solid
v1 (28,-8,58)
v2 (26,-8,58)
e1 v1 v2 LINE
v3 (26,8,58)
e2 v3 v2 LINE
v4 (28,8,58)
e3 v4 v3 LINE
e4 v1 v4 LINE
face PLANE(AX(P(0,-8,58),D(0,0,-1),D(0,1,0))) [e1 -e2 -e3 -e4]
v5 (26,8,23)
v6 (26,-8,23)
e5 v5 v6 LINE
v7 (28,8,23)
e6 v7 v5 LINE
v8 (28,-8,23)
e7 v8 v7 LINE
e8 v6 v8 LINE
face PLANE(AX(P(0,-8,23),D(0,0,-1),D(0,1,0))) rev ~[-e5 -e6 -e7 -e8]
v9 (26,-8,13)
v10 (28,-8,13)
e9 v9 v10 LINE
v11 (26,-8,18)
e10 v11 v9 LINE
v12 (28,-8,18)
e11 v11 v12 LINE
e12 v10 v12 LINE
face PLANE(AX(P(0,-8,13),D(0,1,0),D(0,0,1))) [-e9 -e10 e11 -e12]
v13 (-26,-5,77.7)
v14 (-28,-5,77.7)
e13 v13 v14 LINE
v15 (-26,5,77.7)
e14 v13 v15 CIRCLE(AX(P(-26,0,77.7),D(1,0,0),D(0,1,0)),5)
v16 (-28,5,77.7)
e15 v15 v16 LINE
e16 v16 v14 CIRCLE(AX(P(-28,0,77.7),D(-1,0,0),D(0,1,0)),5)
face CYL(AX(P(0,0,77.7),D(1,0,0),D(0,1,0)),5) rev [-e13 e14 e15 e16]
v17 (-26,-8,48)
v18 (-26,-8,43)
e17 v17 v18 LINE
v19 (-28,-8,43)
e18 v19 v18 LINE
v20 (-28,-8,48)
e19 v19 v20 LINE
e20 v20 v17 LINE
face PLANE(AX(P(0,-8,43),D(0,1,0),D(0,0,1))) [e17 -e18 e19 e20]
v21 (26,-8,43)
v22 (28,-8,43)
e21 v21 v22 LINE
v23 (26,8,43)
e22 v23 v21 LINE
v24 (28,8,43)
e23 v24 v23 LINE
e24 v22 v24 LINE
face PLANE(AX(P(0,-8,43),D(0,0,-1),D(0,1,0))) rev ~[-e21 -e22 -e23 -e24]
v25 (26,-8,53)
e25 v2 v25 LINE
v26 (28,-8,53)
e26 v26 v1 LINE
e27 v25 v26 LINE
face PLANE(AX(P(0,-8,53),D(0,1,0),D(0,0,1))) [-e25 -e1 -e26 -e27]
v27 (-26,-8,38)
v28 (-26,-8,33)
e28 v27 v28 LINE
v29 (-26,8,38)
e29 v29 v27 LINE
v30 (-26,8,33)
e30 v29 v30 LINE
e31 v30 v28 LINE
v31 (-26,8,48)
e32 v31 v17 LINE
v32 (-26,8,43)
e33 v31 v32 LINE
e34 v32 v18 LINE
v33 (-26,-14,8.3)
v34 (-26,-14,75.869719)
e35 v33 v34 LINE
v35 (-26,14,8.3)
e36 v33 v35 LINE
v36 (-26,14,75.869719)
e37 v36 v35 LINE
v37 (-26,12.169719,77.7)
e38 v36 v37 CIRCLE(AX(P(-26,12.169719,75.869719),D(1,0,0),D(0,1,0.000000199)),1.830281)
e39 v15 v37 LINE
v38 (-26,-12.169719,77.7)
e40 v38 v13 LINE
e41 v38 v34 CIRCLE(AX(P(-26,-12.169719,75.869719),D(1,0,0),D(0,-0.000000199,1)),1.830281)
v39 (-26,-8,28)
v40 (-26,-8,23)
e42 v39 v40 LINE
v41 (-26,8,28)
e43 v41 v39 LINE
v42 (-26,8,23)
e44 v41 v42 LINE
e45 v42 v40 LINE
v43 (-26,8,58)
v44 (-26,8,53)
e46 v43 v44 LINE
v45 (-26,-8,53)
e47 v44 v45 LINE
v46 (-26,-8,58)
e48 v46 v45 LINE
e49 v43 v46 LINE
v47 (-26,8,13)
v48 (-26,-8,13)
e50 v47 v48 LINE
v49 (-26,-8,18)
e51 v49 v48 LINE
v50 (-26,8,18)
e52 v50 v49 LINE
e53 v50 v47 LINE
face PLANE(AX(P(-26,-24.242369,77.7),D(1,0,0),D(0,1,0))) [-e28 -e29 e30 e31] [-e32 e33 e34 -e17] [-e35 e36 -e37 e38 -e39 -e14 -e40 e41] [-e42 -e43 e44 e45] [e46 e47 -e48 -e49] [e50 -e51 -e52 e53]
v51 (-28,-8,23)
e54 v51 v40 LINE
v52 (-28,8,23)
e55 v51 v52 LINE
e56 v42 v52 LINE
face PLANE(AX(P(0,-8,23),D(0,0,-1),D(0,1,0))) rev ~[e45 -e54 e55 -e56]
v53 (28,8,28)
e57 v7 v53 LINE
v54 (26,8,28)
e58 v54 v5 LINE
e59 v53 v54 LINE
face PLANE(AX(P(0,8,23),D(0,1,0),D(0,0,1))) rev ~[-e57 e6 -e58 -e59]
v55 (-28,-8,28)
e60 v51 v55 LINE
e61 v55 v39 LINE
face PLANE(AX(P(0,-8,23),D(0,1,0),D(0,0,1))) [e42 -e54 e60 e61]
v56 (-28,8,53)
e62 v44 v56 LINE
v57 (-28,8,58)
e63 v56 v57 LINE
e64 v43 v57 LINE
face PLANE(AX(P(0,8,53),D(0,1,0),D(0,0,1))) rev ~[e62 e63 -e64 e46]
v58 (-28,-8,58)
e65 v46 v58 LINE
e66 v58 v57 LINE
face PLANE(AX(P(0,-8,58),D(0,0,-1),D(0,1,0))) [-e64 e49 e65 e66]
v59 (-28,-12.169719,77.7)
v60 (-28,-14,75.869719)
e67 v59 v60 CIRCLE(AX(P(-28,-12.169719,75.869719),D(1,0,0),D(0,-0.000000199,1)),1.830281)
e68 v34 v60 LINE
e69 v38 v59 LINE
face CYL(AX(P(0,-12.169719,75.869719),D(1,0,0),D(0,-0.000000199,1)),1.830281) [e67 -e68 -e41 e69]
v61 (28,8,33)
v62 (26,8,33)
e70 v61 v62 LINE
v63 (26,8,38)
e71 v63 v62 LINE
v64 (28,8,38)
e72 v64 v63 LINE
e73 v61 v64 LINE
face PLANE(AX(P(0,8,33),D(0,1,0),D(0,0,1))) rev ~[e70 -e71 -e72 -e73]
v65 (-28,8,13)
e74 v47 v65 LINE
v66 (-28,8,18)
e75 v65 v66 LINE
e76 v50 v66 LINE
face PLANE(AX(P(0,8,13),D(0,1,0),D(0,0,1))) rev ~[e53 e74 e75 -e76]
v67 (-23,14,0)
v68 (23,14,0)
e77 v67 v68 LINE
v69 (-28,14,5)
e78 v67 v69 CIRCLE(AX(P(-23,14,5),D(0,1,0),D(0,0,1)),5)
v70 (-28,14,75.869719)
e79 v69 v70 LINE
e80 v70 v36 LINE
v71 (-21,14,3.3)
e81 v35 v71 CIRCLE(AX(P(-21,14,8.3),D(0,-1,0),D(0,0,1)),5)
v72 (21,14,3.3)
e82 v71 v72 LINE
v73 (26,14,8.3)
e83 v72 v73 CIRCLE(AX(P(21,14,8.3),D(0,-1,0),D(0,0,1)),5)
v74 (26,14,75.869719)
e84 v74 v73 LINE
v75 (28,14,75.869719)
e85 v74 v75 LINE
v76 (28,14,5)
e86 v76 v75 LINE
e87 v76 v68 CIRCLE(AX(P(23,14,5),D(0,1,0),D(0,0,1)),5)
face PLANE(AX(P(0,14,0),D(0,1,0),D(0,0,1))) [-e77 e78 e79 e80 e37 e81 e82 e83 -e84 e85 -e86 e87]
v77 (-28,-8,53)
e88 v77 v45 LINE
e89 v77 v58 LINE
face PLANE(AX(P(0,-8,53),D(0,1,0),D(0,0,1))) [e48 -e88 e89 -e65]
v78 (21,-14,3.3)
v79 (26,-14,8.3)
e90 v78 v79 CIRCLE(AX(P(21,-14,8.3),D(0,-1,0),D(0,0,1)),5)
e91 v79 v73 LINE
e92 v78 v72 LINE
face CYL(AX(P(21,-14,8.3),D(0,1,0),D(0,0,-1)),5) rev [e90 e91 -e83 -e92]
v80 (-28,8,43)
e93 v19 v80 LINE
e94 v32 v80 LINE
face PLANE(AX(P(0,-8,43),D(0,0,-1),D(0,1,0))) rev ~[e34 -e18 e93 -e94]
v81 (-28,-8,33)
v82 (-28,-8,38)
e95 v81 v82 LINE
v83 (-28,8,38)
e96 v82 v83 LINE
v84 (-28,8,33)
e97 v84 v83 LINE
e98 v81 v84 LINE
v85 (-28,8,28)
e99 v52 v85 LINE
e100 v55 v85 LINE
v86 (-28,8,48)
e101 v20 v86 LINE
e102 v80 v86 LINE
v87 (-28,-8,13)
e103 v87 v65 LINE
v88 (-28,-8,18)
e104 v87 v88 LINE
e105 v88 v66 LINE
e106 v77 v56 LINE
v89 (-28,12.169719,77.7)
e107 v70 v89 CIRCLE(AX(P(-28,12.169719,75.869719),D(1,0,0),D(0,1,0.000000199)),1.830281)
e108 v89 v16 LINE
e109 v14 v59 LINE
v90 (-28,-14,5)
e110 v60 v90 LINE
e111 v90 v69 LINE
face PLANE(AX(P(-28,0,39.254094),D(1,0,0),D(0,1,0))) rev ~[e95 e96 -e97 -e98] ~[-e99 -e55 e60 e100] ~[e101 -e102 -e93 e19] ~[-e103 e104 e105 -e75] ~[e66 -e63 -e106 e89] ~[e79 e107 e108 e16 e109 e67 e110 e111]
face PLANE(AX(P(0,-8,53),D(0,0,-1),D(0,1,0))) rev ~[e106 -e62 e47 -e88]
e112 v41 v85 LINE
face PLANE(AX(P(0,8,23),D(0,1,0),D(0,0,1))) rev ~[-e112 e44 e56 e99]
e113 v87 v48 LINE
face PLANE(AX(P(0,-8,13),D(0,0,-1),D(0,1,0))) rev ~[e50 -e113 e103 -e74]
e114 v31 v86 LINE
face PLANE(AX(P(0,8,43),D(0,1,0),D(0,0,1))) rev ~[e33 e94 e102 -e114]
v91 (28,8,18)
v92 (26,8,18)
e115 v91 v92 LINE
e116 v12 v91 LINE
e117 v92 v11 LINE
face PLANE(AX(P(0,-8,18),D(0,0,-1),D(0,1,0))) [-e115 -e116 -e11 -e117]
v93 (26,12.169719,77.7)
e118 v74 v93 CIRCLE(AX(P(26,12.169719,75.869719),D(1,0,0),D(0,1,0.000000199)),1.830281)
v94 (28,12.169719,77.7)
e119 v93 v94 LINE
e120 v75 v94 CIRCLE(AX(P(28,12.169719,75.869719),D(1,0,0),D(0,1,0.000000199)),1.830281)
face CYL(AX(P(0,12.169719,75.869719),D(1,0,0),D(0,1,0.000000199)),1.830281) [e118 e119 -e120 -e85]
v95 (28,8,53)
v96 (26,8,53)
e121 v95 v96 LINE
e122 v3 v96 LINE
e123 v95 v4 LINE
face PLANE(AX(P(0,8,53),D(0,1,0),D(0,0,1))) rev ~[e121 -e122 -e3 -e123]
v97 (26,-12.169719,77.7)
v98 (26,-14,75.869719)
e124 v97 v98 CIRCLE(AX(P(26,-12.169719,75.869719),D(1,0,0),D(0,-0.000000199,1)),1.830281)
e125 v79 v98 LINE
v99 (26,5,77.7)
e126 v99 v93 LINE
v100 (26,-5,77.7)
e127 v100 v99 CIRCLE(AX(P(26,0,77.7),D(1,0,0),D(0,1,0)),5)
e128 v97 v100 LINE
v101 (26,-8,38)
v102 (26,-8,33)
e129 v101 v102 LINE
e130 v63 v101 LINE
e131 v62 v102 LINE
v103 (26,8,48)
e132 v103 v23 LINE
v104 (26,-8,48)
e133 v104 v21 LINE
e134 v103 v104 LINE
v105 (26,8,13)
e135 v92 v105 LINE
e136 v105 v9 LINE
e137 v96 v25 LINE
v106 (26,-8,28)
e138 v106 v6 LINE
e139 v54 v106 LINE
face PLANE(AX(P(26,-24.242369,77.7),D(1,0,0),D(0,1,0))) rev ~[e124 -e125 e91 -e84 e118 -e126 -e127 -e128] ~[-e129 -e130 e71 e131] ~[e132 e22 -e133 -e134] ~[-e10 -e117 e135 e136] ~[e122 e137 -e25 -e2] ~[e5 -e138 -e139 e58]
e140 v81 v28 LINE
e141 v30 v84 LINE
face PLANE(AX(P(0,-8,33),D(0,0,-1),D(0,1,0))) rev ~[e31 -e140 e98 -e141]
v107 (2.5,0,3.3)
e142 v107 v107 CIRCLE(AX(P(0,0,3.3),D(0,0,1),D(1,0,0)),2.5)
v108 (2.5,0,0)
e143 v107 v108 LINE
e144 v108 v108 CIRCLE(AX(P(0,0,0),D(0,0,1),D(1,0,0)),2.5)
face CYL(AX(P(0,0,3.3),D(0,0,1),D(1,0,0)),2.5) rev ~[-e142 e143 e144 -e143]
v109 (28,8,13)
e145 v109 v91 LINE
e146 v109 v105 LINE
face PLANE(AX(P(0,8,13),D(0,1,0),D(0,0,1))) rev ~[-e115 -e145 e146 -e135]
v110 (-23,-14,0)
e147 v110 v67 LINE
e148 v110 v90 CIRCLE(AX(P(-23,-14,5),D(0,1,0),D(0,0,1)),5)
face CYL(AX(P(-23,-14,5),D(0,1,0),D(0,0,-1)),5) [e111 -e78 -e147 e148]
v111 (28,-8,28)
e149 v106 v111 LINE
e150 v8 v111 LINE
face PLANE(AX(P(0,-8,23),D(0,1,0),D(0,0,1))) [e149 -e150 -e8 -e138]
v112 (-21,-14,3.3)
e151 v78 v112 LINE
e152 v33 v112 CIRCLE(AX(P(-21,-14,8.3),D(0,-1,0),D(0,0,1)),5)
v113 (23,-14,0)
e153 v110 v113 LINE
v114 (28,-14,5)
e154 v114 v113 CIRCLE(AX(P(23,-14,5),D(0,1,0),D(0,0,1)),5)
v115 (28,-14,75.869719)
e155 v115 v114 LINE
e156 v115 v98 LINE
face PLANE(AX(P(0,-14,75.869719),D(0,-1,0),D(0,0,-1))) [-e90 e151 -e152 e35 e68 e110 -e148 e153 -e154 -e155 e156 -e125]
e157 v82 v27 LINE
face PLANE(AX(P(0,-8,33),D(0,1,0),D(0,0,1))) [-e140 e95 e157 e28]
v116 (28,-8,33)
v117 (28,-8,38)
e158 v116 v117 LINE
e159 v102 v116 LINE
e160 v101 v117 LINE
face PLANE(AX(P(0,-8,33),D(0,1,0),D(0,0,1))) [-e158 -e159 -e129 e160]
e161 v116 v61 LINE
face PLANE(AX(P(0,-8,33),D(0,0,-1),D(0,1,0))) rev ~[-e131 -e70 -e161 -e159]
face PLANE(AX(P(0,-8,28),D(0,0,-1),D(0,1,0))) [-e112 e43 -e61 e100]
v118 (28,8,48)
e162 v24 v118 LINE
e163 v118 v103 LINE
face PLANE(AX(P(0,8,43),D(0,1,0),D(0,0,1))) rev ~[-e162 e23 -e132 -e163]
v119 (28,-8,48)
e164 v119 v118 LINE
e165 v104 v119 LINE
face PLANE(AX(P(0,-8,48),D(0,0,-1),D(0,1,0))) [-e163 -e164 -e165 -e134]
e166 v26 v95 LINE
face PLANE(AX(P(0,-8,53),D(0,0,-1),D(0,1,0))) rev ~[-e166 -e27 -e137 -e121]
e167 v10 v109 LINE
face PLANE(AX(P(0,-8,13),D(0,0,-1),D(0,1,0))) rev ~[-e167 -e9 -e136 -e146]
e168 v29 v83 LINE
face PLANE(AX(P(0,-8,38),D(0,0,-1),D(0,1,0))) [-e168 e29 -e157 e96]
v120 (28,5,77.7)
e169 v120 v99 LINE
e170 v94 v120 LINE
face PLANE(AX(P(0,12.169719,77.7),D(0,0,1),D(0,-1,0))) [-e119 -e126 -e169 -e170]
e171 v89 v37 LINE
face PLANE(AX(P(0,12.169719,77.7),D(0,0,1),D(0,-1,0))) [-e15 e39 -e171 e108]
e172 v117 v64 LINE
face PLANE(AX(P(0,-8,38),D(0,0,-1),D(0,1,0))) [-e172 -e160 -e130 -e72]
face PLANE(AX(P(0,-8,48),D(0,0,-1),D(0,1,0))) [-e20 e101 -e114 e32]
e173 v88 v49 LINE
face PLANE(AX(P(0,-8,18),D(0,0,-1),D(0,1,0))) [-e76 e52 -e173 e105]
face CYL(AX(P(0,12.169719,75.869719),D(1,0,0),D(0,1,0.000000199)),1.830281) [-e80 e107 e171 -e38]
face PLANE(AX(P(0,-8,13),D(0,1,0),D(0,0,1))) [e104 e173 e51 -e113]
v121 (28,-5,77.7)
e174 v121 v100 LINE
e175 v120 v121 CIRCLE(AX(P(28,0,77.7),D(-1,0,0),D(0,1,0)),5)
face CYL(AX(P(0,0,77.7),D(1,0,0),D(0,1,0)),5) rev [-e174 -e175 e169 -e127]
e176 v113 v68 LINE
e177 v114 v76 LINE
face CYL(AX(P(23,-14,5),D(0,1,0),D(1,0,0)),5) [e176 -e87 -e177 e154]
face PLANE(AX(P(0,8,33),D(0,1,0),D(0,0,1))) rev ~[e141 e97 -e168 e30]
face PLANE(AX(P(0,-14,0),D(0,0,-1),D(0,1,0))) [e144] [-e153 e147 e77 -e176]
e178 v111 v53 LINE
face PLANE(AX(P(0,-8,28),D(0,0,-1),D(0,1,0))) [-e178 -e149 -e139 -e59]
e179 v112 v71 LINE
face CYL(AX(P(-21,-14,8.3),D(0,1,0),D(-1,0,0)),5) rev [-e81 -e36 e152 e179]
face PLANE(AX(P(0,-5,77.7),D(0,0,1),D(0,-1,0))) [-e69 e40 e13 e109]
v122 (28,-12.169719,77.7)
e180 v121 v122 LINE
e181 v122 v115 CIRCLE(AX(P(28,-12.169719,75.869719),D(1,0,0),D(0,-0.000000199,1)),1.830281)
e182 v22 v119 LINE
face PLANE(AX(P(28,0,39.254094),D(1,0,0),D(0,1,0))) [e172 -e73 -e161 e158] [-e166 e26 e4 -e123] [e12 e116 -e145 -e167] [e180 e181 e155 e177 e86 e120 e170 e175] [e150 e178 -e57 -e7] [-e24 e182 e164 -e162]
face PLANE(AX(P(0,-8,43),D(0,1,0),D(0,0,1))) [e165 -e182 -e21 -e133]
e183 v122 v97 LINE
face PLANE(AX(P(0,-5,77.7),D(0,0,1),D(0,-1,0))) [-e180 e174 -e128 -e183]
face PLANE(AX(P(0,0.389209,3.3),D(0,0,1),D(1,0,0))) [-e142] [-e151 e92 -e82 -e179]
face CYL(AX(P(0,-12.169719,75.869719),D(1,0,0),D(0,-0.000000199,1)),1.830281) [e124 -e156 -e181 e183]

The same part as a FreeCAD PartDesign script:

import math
import FreeCAD as App
import Part
import Sketcher
Q = App.Units.Quantity


def edges_at(feature, points):
    """Names of the edges that pass closest to the given points."""
    edges = feature.Shape.Edges
    near = lambda p: min(range(len(edges)), key=lambda i: edges[i].distToShape(Part.Vertex(*p))[0])
    return sorted({f"Edge{near(p) + 1}" for p in points})


def add_polygon(sketch, points):
    """Adds a closed chain of lines whose ends are joined by coincident constraints."""
    first, n = sketch.GeometryCount, len(points)
    for a, b in zip(points, points[1:] + points[:1]):
        sketch.addGeometry(Part.LineSegment(App.Vector(*a, 0), App.Vector(*b, 0)), False)
    for i in range(n):
        sketch.addConstraint(Sketcher.Constraint("Coincident", first + i, 2, first + (i + 1) % n, 1))

doc = App.newDocument("Part")
body = doc.addObject("PartDesign::Body", "Body")

sketch1 = body.newObject("Sketcher::SketchObject", "Sketch")
sketch1.AttachmentSupport = (doc.getObject("YZ_Plane"), [""])
sketch1.MapMode = "FlatFace"
sketch1.addGeometry(Part.LineSegment(App.Vector(-14, 75.9, 0), App.Vector(-14, 0, 0)), False)
sketch1.addGeometry(Part.LineSegment(App.Vector(-14, 0, 0), App.Vector(14, 0, 0)), False)
sketch1.addGeometry(Part.LineSegment(App.Vector(14, 0, 0), App.Vector(14, 75.9, 0)), False)
sketch1.addGeometry(Part.ArcOfCircle(Part.Circle(App.Vector(12.2, 75.9, 0), App.Vector(0, 0, 1), 1.8), math.radians(0), math.radians(90)), False)
sketch1.addGeometry(Part.LineSegment(App.Vector(12.2, 77.7, 0), App.Vector(5, 77.7, 0)), False)
sketch1.addGeometry(Part.ArcOfCircle(Part.Circle(App.Vector(0, 77.7, 0), App.Vector(0, 0, 1), 5), math.radians(180), math.radians(360)), False)
sketch1.addGeometry(Part.LineSegment(App.Vector(-5, 77.7, 0), App.Vector(-12.2, 77.7, 0)), False)
sketch1.addGeometry(Part.ArcOfCircle(Part.Circle(App.Vector(-12.2, 75.9, 0), App.Vector(0, 0, 1), 1.8), math.radians(90), math.radians(180)), False)
add_polygon(sketch1, [(8, 13), (-8, 13), (-8, 18), (8, 18)])
add_polygon(sketch1, [(8, 23), (-8, 23), (-8, 28), (8, 28)])
add_polygon(sketch1, [(8, 33), (-8, 33), (-8, 38), (8, 38)])
add_polygon(sketch1, [(8, 43), (-8, 43), (-8, 48), (8, 48)])
add_polygon(sketch1, [(8, 53), (-8, 53), (-8, 58), (8, 58)])
sketch1.addConstraint([
    Sketcher.Constraint("Coincident", 0, 2, 1, 1),
    Sketcher.Constraint("Coincident", 1, 2, 2, 1),
    Sketcher.Constraint("Tangent", 2, 2, 3, 1),
    Sketcher.Constraint("Tangent", 3, 2, 4, 1),
    Sketcher.Constraint("Coincident", 4, 2, 5, 2),
    Sketcher.Constraint("Coincident", 5, 1, 6, 1),
    Sketcher.Constraint("Tangent", 6, 2, 7, 1),
    Sketcher.Constraint("Tangent", 7, 2, 0, 1),
    Sketcher.Constraint("Vertical", 0),
    Sketcher.Constraint("Horizontal", 1),
    Sketcher.Constraint("Vertical", 2),
    Sketcher.Constraint("Horizontal", 4),
    Sketcher.Constraint("Horizontal", 6),
    Sketcher.Constraint("Horizontal", 8),
    Sketcher.Constraint("Vertical", 9),
    Sketcher.Constraint("Horizontal", 10),
    Sketcher.Constraint("Vertical", 11),
    Sketcher.Constraint("Horizontal", 12),
    Sketcher.Constraint("Vertical", 13),
    Sketcher.Constraint("Horizontal", 14),
    Sketcher.Constraint("Vertical", 15),
    Sketcher.Constraint("Horizontal", 16),
    Sketcher.Constraint("Vertical", 17),
    Sketcher.Constraint("Horizontal", 18),
    Sketcher.Constraint("Vertical", 19),
    Sketcher.Constraint("Horizontal", 20),
    Sketcher.Constraint("Vertical", 21),
    Sketcher.Constraint("Horizontal", 22),
    Sketcher.Constraint("Vertical", 23),
    Sketcher.Constraint("Horizontal", 24),
    Sketcher.Constraint("Vertical", 25),
    Sketcher.Constraint("Horizontal", 26),
    Sketcher.Constraint("Vertical", 27),
    Sketcher.Constraint("Equal", 3, 7),
    Sketcher.Constraint("Symmetric", 0, 2, 1, 2, -1, 1),
    Sketcher.Constraint("Symmetric", 4, 2, 5, 1, -2),
    Sketcher.Constraint("Horizontal", 5, 3, 3, 2),
    Sketcher.Constraint("Vertical", 9, 2, 12, 2),
    Sketcher.Constraint("Vertical", 11, 2, 14, 2),
    Sketcher.Constraint("Vertical", 13, 2, 16, 2),
    Sketcher.Constraint("Vertical", 15, 2, 18, 2),
    Sketcher.Constraint("Vertical", 17, 2, 20, 2),
    Sketcher.Constraint("Vertical", 19, 2, 22, 2),
    Sketcher.Constraint("Vertical", 21, 2, 24, 2),
    Sketcher.Constraint("Vertical", 23, 2, 26, 2),
    Sketcher.Constraint("Equal", 11, 13),
    Sketcher.Constraint("Equal", 15, 17),
    Sketcher.Constraint("Equal", 19, 21),
    Sketcher.Constraint("Equal", 23, 25),
    Sketcher.Constraint("Radius", 5, Q("5 mm")),
    Sketcher.Constraint("DistanceX", 1, 1, 1, 2, Q("28 mm")),
    Sketcher.Constraint("DistanceX", 8, 2, 8, 1, Q("16 mm")),
    Sketcher.Constraint("DistanceY", 9, 1, 9, 2, Q("5 mm")),
    Sketcher.Constraint("DistanceX", 8, 2, -1, 1, Q("8 mm")),
    Sketcher.Constraint("DistanceY", -1, 1, 8, 2, Q("13 mm")),
    Sketcher.Constraint("DistanceY", -1, 1, 12, 2, Q("23 mm")),
    Sketcher.Constraint("DistanceY", -1, 1, 16, 2, Q("33 mm")),
    Sketcher.Constraint("DistanceY", -1, 1, 20, 2, Q("43 mm")),
    Sketcher.Constraint("DistanceY", -1, 1, 24, 2, Q("53 mm")),
    Sketcher.Constraint("DistanceY", -1, 1, 5, 3, Q("77.7 mm")),
    Sketcher.Constraint("Radius", 3, Q("1.830281 mm")),
])
pad1 = body.newObject("PartDesign::Pad", "Pad")
pad1.Profile = sketch1
pad1.Length = 56
pad1.Midplane = True

sketch2 = body.newObject("Sketcher::SketchObject", "Sketch001")
sketch2.AttachmentSupport = (doc.getObject("XY_Plane"), [""])
sketch2.MapMode = "FlatFace"
sketch2.AttachmentOffset = App.Placement(App.Vector(0, 0, 77.7), App.Rotation())
add_polygon(sketch2, [(-26, 25), (-26, -24), (26, -24), (26, 25)])
sketch2.addConstraint([
    Sketcher.Constraint("Vertical", 0),
    Sketcher.Constraint("Horizontal", 1),
    Sketcher.Constraint("Vertical", 2),
    Sketcher.Constraint("Horizontal", 3),
    Sketcher.Constraint("DistanceX", 1, 1, 1, 2, Q("52 mm")),
    Sketcher.Constraint("DistanceX", 0, 2, -1, 1, Q("26 mm")),
    Sketcher.Constraint("DistanceY", 0, 2, 0, 1, Q("49.263156 mm")),
    Sketcher.Constraint("DistanceY", 0, 2, -1, 1, Q("24.242369 mm")),
])
pocket1 = body.newObject("PartDesign::Pocket", "Pocket")
pocket1.Profile = sketch2
pocket1.Length = 74.4
doc.recompute()

fillet = body.newObject("PartDesign::Fillet", "Fillet")
fillet.Base = (pocket1, edges_at(pocket1, [
    (-28, 0, 0),
    (28, 0, 0),
    (-26, 0, 3.3),
    (26, 0, 3.3),
]))
fillet.Radius = 5

sketch3 = body.newObject("Sketcher::SketchObject", "Sketch002")
sketch3.AttachmentSupport = (doc.getObject("XY_Plane"), [""])
sketch3.MapMode = "FlatFace"
sketch3.AttachmentOffset = App.Placement(App.Vector(0, 0, 3.3), App.Rotation())
sketch3.addGeometry(Part.Circle(App.Vector(0, 0, 0), App.Vector(0, 0, 1), 2.5), False)
sketch3.addConstraint([
    Sketcher.Constraint("Coincident", 0, 3, -1, 1),
    Sketcher.Constraint("Diameter", 0, Q("5 mm")),
])
pocket2 = body.newObject("PartDesign::Pocket", "Pocket001")
pocket2.Profile = sketch3
pocket2.Type = "ThroughAll"

doc.recompute()
